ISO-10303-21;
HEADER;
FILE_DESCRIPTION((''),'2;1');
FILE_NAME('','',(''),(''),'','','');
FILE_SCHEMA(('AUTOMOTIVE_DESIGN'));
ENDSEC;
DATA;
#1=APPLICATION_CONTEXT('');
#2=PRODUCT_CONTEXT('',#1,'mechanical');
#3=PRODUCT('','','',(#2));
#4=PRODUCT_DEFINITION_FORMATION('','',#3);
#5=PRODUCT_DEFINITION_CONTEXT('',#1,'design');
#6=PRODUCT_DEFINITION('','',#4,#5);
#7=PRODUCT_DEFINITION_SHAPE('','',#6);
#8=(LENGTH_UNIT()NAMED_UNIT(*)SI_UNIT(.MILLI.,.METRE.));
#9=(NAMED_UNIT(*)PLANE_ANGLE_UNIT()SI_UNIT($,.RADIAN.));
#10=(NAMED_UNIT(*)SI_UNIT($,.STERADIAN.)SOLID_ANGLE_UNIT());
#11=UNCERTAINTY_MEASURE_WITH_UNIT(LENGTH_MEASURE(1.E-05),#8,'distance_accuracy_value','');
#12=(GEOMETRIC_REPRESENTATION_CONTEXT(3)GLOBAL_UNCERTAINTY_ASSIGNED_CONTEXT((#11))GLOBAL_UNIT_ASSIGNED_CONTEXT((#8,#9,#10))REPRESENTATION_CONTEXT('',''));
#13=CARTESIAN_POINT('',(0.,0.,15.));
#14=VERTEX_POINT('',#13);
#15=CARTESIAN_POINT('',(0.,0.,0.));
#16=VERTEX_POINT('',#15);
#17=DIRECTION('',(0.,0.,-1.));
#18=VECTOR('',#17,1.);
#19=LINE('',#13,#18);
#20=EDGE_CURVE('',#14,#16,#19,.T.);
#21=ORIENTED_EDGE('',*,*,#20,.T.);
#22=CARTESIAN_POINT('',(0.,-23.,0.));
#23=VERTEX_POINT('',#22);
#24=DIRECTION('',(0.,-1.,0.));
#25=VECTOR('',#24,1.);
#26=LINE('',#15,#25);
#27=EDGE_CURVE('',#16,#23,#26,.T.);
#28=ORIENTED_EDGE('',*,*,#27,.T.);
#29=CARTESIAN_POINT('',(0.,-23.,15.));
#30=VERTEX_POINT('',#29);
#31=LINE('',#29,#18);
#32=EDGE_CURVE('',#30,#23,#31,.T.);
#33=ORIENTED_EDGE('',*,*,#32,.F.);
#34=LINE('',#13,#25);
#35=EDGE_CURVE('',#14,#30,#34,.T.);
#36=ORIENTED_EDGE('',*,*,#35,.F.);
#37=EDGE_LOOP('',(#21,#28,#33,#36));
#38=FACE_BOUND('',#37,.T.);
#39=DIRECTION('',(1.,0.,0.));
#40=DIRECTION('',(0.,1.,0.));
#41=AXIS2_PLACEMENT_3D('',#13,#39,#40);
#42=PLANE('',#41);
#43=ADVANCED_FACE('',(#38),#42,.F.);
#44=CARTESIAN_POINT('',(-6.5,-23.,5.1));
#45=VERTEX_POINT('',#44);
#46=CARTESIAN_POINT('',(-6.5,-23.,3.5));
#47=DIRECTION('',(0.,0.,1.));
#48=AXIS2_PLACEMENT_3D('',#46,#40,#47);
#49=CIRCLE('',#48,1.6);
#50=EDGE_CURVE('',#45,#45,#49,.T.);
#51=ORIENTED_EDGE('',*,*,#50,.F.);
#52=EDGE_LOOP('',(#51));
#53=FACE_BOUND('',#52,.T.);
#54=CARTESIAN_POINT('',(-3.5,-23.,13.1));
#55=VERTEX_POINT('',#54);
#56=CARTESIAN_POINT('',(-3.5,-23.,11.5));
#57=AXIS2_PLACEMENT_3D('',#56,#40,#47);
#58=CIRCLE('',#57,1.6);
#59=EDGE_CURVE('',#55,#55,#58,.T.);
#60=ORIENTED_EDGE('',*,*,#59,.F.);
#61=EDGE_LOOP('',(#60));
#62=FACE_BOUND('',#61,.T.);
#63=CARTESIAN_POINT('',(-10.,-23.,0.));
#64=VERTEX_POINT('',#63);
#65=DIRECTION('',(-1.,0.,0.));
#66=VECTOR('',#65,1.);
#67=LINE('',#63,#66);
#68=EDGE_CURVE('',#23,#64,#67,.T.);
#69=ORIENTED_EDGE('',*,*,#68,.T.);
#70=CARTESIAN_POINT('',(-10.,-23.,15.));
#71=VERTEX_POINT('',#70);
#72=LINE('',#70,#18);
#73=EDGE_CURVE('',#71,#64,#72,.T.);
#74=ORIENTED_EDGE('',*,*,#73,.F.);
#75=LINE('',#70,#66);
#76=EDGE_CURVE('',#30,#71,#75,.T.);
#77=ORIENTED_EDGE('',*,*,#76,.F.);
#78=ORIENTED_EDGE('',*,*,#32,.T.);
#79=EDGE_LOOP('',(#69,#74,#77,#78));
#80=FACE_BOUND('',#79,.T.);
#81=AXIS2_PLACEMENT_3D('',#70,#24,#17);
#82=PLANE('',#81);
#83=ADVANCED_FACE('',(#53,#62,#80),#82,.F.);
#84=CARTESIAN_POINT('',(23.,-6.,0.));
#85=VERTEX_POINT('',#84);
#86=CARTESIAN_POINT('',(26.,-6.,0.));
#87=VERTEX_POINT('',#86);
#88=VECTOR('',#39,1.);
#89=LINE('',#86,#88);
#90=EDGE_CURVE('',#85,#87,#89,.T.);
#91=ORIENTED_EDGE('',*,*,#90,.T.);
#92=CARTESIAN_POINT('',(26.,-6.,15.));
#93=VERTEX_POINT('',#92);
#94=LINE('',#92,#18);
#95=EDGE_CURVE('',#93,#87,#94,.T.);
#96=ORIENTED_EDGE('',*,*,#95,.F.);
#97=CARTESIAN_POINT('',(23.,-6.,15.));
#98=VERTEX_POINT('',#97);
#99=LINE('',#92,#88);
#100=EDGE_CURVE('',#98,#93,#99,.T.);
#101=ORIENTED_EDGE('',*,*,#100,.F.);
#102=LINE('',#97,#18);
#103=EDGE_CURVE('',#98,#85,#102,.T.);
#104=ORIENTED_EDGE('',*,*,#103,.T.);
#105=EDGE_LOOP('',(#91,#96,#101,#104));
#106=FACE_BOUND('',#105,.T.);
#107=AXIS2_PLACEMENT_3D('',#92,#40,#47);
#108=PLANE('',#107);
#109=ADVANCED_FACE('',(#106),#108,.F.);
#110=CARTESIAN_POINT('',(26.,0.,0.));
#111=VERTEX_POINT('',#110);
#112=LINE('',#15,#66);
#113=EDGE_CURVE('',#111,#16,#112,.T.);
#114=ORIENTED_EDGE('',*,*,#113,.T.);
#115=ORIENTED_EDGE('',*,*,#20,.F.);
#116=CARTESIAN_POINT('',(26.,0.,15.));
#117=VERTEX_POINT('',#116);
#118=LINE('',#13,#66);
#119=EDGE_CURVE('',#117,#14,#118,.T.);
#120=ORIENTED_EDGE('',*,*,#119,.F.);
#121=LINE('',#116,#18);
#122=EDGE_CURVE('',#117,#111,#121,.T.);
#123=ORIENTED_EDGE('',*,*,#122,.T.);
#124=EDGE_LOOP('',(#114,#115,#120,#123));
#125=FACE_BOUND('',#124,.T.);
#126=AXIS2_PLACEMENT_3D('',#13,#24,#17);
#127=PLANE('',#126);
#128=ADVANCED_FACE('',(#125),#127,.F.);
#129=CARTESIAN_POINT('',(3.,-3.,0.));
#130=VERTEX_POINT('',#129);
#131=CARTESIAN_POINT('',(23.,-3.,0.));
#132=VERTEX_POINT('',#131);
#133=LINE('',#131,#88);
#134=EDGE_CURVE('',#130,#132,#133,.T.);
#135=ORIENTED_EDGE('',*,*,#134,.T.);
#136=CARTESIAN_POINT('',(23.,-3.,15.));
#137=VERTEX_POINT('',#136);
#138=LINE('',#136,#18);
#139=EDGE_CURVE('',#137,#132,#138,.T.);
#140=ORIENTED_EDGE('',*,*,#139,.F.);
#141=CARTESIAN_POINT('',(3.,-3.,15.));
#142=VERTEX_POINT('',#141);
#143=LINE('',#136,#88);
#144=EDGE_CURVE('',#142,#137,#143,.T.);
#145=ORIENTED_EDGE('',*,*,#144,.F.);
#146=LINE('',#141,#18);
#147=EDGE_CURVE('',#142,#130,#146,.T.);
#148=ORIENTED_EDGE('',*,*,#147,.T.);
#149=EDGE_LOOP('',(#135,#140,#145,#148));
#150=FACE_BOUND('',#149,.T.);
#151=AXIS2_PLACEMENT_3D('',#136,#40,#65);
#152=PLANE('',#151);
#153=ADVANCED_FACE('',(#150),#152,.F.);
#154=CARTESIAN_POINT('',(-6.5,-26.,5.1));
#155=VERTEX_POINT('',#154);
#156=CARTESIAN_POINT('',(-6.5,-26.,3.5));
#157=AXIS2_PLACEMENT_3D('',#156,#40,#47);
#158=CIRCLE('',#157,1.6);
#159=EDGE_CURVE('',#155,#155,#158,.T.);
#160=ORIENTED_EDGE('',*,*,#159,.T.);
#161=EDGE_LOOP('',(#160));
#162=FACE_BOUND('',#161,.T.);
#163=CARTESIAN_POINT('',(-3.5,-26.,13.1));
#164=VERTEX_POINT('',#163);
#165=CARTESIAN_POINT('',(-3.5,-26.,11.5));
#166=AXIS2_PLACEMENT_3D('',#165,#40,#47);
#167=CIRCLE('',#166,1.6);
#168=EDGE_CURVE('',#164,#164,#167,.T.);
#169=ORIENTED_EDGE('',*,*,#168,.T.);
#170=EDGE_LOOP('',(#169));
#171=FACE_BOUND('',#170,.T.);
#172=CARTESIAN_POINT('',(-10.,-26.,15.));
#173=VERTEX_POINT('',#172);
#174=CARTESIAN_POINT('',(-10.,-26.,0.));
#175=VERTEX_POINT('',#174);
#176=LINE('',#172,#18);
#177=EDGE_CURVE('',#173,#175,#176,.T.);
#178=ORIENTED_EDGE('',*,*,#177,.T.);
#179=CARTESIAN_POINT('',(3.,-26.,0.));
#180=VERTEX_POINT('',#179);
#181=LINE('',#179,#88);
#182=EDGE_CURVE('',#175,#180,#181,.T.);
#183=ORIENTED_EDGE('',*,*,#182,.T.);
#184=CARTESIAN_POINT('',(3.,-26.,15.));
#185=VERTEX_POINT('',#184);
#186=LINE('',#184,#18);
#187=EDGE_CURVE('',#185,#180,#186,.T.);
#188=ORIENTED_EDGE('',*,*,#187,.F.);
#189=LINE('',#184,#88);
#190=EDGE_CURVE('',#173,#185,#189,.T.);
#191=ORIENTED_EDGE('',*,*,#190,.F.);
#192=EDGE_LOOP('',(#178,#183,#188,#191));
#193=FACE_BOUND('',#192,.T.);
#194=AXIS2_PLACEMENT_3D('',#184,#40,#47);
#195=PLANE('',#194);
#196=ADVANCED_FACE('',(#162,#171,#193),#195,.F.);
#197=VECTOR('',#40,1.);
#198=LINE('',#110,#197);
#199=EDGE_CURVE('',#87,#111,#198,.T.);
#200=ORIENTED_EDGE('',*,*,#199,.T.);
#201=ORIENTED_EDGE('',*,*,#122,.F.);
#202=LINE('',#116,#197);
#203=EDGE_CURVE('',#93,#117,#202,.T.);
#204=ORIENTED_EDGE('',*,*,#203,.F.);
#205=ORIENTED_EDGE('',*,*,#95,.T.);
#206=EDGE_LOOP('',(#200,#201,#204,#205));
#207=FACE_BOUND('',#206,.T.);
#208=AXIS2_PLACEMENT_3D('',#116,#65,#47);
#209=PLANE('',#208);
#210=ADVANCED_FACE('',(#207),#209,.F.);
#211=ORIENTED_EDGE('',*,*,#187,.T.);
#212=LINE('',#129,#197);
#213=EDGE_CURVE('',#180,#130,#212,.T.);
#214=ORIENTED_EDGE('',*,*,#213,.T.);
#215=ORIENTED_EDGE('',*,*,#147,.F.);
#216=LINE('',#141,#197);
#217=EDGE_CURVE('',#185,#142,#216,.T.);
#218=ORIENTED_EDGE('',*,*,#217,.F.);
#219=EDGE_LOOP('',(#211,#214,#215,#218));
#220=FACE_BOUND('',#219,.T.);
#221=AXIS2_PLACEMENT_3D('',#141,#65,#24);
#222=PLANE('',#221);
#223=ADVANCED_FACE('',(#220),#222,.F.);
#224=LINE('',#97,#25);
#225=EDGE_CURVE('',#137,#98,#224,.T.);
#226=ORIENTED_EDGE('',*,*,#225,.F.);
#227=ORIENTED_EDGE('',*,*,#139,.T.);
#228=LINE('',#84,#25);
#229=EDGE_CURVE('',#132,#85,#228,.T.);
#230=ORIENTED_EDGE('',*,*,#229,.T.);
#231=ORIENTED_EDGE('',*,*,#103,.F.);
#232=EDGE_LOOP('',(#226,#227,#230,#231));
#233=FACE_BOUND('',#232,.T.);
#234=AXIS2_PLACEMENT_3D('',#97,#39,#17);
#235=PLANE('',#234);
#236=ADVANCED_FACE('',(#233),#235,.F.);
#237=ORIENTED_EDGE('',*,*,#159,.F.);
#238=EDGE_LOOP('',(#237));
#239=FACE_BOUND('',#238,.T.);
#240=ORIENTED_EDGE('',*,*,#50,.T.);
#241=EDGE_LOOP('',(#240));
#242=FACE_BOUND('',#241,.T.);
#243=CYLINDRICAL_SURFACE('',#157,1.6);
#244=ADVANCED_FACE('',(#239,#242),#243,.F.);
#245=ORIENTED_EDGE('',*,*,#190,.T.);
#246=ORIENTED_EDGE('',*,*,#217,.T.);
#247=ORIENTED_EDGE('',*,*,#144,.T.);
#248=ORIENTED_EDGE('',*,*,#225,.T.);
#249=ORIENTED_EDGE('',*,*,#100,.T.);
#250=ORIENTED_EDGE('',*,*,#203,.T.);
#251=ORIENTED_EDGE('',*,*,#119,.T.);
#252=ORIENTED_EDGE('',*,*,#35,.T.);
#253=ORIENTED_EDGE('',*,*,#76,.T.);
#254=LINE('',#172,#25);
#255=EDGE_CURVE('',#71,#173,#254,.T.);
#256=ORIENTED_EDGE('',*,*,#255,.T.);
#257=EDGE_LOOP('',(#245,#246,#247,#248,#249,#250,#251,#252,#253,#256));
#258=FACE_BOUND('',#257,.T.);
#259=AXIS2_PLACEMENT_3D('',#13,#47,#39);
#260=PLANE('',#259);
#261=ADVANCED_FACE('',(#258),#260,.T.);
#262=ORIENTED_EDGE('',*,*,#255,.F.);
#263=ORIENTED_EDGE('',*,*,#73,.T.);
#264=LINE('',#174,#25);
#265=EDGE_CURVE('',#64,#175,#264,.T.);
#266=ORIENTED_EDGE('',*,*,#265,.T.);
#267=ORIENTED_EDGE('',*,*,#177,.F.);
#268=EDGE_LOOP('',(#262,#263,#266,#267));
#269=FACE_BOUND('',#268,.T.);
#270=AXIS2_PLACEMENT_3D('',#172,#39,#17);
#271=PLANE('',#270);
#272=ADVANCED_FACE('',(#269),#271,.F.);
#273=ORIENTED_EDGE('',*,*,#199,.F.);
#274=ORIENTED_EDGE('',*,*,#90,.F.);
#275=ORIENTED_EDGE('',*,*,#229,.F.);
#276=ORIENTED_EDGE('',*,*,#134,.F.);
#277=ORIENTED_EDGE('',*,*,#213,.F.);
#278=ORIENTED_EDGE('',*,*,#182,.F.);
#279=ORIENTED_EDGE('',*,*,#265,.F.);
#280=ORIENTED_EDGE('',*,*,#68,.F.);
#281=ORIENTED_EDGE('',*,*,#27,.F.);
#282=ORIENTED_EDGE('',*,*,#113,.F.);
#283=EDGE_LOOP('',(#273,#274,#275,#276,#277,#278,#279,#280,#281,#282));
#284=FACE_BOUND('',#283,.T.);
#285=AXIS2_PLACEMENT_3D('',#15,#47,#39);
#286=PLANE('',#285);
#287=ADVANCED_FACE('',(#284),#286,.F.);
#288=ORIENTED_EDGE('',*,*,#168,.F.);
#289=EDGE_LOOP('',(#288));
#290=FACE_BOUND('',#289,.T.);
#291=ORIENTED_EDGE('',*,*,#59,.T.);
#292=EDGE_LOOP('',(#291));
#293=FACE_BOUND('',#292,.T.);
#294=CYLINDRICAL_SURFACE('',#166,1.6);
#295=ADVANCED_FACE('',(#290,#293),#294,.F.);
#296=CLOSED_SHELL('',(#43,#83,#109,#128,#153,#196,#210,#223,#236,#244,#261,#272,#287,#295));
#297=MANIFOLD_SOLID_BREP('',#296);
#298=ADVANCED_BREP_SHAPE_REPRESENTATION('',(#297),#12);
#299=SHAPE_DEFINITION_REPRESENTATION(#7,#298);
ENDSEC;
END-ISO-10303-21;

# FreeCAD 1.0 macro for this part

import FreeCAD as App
import Part
import Sketcher
from FreeCAD import Vector

doc = App.newDocument("Part")
body = doc.addObject("PartDesign::Body", "Body")

# Sketch on XY plane
sketch1 = body.newObject("Sketcher::SketchObject", "Sketch")
sketch1.AttachmentSupport = (doc.getObject("XY_Plane"), [""])
sketch1.MapMode = "FlatFace"
sketch1.addGeometry(Part.LineSegment(Vector(26, 0, 0), Vector(0, 0, 0)), False)
sketch1.addGeometry(Part.LineSegment(Vector(0, 0, 0), Vector(0, -23, 0)), False)
sketch1.addGeometry(Part.LineSegment(Vector(0, -23, 0), Vector(-10, -23, 0)), False)
sketch1.addGeometry(Part.LineSegment(Vector(-10, -23, 0), Vector(-10, -26, 0)), False)
sketch1.addGeometry(Part.LineSegment(Vector(-10, -26, 0), Vector(3, -26, 0)), False)
sketch1.addGeometry(Part.LineSegment(Vector(3, -26, 0), Vector(3, -3, 0)), False)
sketch1.addGeometry(Part.LineSegment(Vector(3, -3, 0), Vector(23, -3, 0)), False)
sketch1.addGeometry(Part.LineSegment(Vector(23, -3, 0), Vector(23, -6, 0)), False)
sketch1.addGeometry(Part.LineSegment(Vector(23, -6, 0), Vector(26, -6, 0)), False)
sketch1.addGeometry(Part.LineSegment(Vector(26, -6, 0), Vector(26, 0, 0)), False)
sketch1.addConstraint(Sketcher.Constraint("Coincident", 0, 2, 1, 1))
sketch1.addConstraint(Sketcher.Constraint("Coincident", 1, 2, 2, 1))
sketch1.addConstraint(Sketcher.Constraint("Coincident", 2, 2, 3, 1))
sketch1.addConstraint(Sketcher.Constraint("Coincident", 3, 2, 4, 1))
sketch1.addConstraint(Sketcher.Constraint("Coincident", 4, 2, 5, 1))
sketch1.addConstraint(Sketcher.Constraint("Coincident", 5, 2, 6, 1))
sketch1.addConstraint(Sketcher.Constraint("Coincident", 6, 2, 7, 1))
sketch1.addConstraint(Sketcher.Constraint("Coincident", 7, 2, 8, 1))
sketch1.addConstraint(Sketcher.Constraint("Coincident", 8, 2, 9, 1))
sketch1.addConstraint(Sketcher.Constraint("Coincident", 9, 2, 0, 1))
sketch1.addConstraint(Sketcher.Constraint("Horizontal", 0))
sketch1.addConstraint(Sketcher.Constraint("Vertical", 1))
sketch1.addConstraint(Sketcher.Constraint("Horizontal", 2))
sketch1.addConstraint(Sketcher.Constraint("Vertical", 3))
sketch1.addConstraint(Sketcher.Constraint("Horizontal", 4))
sketch1.addConstraint(Sketcher.Constraint("Vertical", 5))
sketch1.addConstraint(Sketcher.Constraint("Horizontal", 6))
sketch1.addConstraint(Sketcher.Constraint("Vertical", 7))
sketch1.addConstraint(Sketcher.Constraint("Horizontal", 8))
sketch1.addConstraint(Sketcher.Constraint("Vertical", 9))
sketch1.addConstraint(Sketcher.Constraint("Coincident", 0, 2, -1, 1))
sketch1.addConstraint(Sketcher.Constraint("Equal", 8, 3))
sketch1.addConstraint(Sketcher.Constraint("Equal", 1, 5))
sketch1.addConstraint(Sketcher.Constraint("Equal", 3, 7))
sketch1.addConstraint(Sketcher.Constraint("DistanceX", 0, 2, 0, 1, 26.0))
sketch1.addConstraint(Sketcher.Constraint("DistanceX", 2, 2, 2, 1, 10.0))
sketch1.addConstraint(Sketcher.Constraint("DistanceX", 4, 1, 4, 2, 13.0))
sketch1.addConstraint(Sketcher.Constraint("DistanceX", 6, 1, 6, 2, 20.0))
sketch1.addConstraint(Sketcher.Constraint("DistanceY", 1, 2, 1, 1, 23.0))
pad1 = body.newObject("PartDesign::Pad", "Pad")
pad1.Profile = sketch1
pad1.Length = 15

# Sketch on XZ plane
sketch2 = body.newObject("Sketcher::SketchObject", "Sketch001")
sketch2.AttachmentSupport = (doc.getObject("XZ_Plane"), [""])
sketch2.MapMode = "FlatFace"
sketch2.AttachmentOffset = App.Placement(Vector(0, 0, 23), App.Rotation())
sketch2.addGeometry(Part.Circle(Vector(-6.5, 3.5, 0), Vector(0, 0, 1), 1.6), False)
sketch2.addGeometry(Part.Circle(Vector(-3.5, 11.5, 0), Vector(0, 0, 1), 1.6), False)
sketch2.addConstraint(Sketcher.Constraint("Equal", 0, 1))
sketch2.addConstraint(Sketcher.Constraint("Diameter", 0, 3.2))
sketch2.addConstraint(Sketcher.Constraint("DistanceX", 0, 3, 1, 3, 3.0))
sketch2.addConstraint(Sketcher.Constraint("DistanceY", 0, 3, 1, 3, 8.0))
sketch2.addConstraint(Sketcher.Constraint("DistanceX", 0, 3, -1, 1, 6.5))
sketch2.addConstraint(Sketcher.Constraint("DistanceY", -1, 1, 0, 3, 3.5))
pocket1 = body.newObject("PartDesign::Pocket", "Pocket")
pocket1.Profile = sketch2
pocket1.Length = 3
pocket1.Reversed = True

doc.recompute()
